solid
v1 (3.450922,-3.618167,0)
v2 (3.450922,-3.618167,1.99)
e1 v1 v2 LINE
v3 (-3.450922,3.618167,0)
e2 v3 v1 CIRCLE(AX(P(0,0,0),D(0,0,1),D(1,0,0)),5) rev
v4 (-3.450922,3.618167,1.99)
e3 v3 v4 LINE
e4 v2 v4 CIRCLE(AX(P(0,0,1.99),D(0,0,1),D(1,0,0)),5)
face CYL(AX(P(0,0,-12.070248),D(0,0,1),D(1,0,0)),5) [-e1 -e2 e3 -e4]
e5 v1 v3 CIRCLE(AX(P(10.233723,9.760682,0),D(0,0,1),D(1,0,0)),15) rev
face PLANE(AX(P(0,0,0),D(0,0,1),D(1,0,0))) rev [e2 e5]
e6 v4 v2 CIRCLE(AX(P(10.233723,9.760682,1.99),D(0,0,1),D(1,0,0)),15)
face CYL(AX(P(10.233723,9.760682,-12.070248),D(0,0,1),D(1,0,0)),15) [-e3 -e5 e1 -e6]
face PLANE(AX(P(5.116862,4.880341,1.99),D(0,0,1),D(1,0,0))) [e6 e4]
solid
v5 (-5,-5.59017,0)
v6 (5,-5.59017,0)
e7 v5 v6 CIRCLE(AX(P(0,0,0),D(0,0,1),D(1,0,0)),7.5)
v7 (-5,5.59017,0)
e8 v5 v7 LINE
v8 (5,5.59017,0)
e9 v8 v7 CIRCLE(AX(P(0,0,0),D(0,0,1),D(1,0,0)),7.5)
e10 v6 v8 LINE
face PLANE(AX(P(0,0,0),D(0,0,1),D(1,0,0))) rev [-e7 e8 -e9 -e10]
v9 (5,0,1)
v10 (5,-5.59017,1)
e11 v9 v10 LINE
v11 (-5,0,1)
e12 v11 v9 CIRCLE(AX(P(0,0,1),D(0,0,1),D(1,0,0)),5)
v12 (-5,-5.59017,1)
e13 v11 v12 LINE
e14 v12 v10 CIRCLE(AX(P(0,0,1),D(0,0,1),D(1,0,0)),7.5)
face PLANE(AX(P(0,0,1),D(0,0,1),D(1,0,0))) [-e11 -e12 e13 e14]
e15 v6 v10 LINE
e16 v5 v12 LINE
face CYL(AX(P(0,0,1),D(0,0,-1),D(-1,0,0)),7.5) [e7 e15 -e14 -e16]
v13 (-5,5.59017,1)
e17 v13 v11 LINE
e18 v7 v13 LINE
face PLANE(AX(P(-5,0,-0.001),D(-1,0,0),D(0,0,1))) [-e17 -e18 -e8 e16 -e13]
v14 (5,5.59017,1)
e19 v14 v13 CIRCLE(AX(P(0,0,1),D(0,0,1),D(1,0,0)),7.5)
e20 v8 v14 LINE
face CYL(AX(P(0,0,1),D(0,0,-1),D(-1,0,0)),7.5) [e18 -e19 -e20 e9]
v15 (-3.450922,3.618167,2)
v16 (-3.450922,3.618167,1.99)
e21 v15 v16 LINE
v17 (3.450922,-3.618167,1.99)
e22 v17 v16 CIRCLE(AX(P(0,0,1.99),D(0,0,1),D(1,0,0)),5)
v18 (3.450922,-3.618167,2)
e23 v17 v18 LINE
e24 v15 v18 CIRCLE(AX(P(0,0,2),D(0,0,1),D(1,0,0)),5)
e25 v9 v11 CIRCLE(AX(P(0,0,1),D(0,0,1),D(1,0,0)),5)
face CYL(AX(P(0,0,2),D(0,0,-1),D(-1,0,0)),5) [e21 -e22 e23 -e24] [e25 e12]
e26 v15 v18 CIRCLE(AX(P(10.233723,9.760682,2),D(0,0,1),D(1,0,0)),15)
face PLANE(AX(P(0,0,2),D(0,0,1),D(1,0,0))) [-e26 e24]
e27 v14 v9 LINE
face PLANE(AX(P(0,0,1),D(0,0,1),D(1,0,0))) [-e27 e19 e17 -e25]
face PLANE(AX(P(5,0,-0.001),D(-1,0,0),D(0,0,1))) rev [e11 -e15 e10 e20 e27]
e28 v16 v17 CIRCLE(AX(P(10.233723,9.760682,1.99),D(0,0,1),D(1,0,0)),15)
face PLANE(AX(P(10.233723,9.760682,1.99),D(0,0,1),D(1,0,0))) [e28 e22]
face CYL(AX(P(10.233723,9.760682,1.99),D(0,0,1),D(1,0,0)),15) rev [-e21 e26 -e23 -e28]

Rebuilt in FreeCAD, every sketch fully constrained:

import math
import FreeCAD as App
import Part
import Sketcher
from FreeCAD import Vector

doc = App.newDocument("Part")
body = doc.addObject("PartDesign::Body", "Body")

# Sketch on XY plane
sketch1 = body.newObject("Sketcher::SketchObject", "Sketch")
sketch1.AttachmentSupport = (doc.getObject("XY_Plane"), [""])
sketch1.MapMode = "FlatFace"
sketch1.addGeometry(Part.Circle(Vector(0, 0, 0), Vector(0, 0, 1), 8), False)
sketch1.addConstraint(Sketcher.Constraint("Coincident", 0, 3, -1, 1))
sketch1.addConstraint(Sketcher.Constraint("Diameter", 0, 15.0))
pad1 = body.newObject("PartDesign::Pad", "Pad")
pad1.Profile = sketch1
pad1.Length = 1

# Sketch on XY plane
sketch2 = body.newObject("Sketcher::SketchObject", "Sketch001")
sketch2.AttachmentSupport = (doc.getObject("XY_Plane"), [""])
sketch2.MapMode = "FlatFace"
sketch2.AttachmentOffset = App.Placement(Vector(0, 0, 1), App.Rotation())
sketch2.addGeometry(Part.Circle(Vector(0, 0, 0), Vector(0, 0, 1), 5), False)
sketch2.addConstraint(Sketcher.Constraint("Coincident", 0, 3, -1, 1))
sketch2.addConstraint(Sketcher.Constraint("Diameter", 0, 10.0))
pad2 = body.newObject("PartDesign::Pad", "Pad001")
pad2.Profile = sketch2
pad2.Length = 1

# Sketch on XY plane
sketch3 = body.newObject("Sketcher::SketchObject", "Sketch002")
sketch3.AttachmentSupport = (doc.getObject("XY_Plane"), [""])
sketch3.MapMode = "FlatFace"
sketch3.AttachmentOffset = App.Placement(Vector(0, 0, 1), App.Rotation())
sketch3.addGeometry(Part.ArcOfCircle(Part.Circle(Vector(0, 0, 0), Vector(0, 0, 1), 8), math.radians(-48), math.radians(48)), False)
sketch3.addGeometry(Part.LineSegment(Vector(5, 6, 0), Vector(5, -6, 0)), False)
sketch3.addConstraint(Sketcher.Constraint("Coincident", 0, 1, 1, 2))
sketch3.addConstraint(Sketcher.Constraint("Coincident", 1, 1, 0, 2))
sketch3.addConstraint(Sketcher.Constraint("Vertical", 1))
sketch3.addConstraint(Sketcher.Constraint("Coincident", 0, 3, -1, 1))
sketch3.addConstraint(Sketcher.Constraint("Radius", 0, 7.5))
sketch3.addConstraint(Sketcher.Constraint("DistanceX", -1, 1, 0, 1, 5.0))
pocket1 = body.newObject("PartDesign::Pocket", "Pocket")
pocket1.Profile = sketch3
pocket1.Type = "UpToFirst"

# Sketch on XY plane
sketch4 = body.newObject("Sketcher::SketchObject", "Sketch003")
sketch4.AttachmentSupport = (doc.getObject("XY_Plane"), [""])
sketch4.MapMode = "FlatFace"
sketch4.AttachmentOffset = App.Placement(Vector(0, 0, 1), App.Rotation())
sketch4.addGeometry(Part.LineSegment(Vector(-5, -6, 0), Vector(-5, 6, 0)), False)
sketch4.addGeometry(Part.ArcOfCircle(Part.Circle(Vector(0, 0, 0), Vector(0, 0, 1), 8), math.radians(132), math.radians(228)), False)
sketch4.addConstraint(Sketcher.Constraint("Coincident", 0, 1, 1, 2))
sketch4.addConstraint(Sketcher.Constraint("Coincident", 1, 1, 0, 2))
sketch4.addConstraint(Sketcher.Constraint("Vertical", 0))
sketch4.addConstraint(Sketcher.Constraint("Coincident", 1, 3, -1, 1))
sketch4.addConstraint(Sketcher.Constraint("Radius", 1, 7.5))
sketch4.addConstraint(Sketcher.Constraint("DistanceX", 0, 1, -1, 1, 5.0))
pocket2 = body.newObject("PartDesign::Pocket", "Pocket001")
pocket2.Profile = sketch4
pocket2.Type = "UpToFirst"

# Sketch on XY plane
sketch5 = body.newObject("Sketcher::SketchObject", "Sketch004")
sketch5.AttachmentSupport = (doc.getObject("XY_Plane"), [""])
sketch5.MapMode = "FlatFace"
sketch5.AttachmentOffset = App.Placement(Vector(0, 0, 2), App.Rotation())
sketch5.addGeometry(Part.Circle(Vector(10, 10, 0), Vector(0, 0, 1), 15), False)
sketch5.addConstraint(Sketcher.Constraint("Diameter", 0, 30.0))
sketch5.addConstraint(Sketcher.Constraint("DistanceY", -1, 1, 0, 3, 9.760682))
sketch5.addConstraint(Sketcher.Constraint("DistanceX", -1, 1, 0, 3, 10.233723))
pocket3 = body.newObject("PartDesign::Pocket", "Pocket002")
pocket3.Profile = sketch5
pocket3.Length = 0.01
body2 = doc.addObject("PartDesign::Body", "Body001")

# Sketch on XY plane
sketch6 = body2.newObject("Sketcher::SketchObject", "Sketch005")
sketch6.AttachmentSupport = (doc.getObject("XY_Plane001"), [""])
sketch6.MapMode = "FlatFace"
sketch6.AttachmentOffset = App.Placement(Vector(0, 0, 1.99), App.Rotation())
sketch6.addGeometry(Part.ArcOfCircle(Part.Circle(Vector(0, 0, 0), Vector(0, 0, 1), 5), math.radians(-46), math.radians(134)), False)
sketch6.addGeometry(Part.ArcOfCircle(Part.Circle(Vector(10, 10, 0), Vector(0, 0, 1), 15), math.radians(-156), math.radians(-117)), False)
sketch6.addConstraint(Sketcher.Constraint("Coincident", 0, 1, 1, 2))
sketch6.addConstraint(Sketcher.Constraint("Coincident", 1, 1, 0, 2))
sketch6.addConstraint(Sketcher.Constraint("Coincident", 0, 3, -1, 1))
sketch6.addConstraint(Sketcher.Constraint("Radius", 0, 5.0))
sketch6.addConstraint(Sketcher.Constraint("Radius", 1, 15.0))
sketch6.addConstraint(Sketcher.Constraint("DistanceX", 0, 1, 1, 3, 6.782801))
sketch6.addConstraint(Sketcher.Constraint("DistanceY", -1, 1, 1, 3, 9.760682))
pad3 = body2.newObject("PartDesign::Pad", "Pad002")
pad3.Profile = sketch6
pad3.Length = 1.99
pad3.Reversed = True

doc.recompute()
